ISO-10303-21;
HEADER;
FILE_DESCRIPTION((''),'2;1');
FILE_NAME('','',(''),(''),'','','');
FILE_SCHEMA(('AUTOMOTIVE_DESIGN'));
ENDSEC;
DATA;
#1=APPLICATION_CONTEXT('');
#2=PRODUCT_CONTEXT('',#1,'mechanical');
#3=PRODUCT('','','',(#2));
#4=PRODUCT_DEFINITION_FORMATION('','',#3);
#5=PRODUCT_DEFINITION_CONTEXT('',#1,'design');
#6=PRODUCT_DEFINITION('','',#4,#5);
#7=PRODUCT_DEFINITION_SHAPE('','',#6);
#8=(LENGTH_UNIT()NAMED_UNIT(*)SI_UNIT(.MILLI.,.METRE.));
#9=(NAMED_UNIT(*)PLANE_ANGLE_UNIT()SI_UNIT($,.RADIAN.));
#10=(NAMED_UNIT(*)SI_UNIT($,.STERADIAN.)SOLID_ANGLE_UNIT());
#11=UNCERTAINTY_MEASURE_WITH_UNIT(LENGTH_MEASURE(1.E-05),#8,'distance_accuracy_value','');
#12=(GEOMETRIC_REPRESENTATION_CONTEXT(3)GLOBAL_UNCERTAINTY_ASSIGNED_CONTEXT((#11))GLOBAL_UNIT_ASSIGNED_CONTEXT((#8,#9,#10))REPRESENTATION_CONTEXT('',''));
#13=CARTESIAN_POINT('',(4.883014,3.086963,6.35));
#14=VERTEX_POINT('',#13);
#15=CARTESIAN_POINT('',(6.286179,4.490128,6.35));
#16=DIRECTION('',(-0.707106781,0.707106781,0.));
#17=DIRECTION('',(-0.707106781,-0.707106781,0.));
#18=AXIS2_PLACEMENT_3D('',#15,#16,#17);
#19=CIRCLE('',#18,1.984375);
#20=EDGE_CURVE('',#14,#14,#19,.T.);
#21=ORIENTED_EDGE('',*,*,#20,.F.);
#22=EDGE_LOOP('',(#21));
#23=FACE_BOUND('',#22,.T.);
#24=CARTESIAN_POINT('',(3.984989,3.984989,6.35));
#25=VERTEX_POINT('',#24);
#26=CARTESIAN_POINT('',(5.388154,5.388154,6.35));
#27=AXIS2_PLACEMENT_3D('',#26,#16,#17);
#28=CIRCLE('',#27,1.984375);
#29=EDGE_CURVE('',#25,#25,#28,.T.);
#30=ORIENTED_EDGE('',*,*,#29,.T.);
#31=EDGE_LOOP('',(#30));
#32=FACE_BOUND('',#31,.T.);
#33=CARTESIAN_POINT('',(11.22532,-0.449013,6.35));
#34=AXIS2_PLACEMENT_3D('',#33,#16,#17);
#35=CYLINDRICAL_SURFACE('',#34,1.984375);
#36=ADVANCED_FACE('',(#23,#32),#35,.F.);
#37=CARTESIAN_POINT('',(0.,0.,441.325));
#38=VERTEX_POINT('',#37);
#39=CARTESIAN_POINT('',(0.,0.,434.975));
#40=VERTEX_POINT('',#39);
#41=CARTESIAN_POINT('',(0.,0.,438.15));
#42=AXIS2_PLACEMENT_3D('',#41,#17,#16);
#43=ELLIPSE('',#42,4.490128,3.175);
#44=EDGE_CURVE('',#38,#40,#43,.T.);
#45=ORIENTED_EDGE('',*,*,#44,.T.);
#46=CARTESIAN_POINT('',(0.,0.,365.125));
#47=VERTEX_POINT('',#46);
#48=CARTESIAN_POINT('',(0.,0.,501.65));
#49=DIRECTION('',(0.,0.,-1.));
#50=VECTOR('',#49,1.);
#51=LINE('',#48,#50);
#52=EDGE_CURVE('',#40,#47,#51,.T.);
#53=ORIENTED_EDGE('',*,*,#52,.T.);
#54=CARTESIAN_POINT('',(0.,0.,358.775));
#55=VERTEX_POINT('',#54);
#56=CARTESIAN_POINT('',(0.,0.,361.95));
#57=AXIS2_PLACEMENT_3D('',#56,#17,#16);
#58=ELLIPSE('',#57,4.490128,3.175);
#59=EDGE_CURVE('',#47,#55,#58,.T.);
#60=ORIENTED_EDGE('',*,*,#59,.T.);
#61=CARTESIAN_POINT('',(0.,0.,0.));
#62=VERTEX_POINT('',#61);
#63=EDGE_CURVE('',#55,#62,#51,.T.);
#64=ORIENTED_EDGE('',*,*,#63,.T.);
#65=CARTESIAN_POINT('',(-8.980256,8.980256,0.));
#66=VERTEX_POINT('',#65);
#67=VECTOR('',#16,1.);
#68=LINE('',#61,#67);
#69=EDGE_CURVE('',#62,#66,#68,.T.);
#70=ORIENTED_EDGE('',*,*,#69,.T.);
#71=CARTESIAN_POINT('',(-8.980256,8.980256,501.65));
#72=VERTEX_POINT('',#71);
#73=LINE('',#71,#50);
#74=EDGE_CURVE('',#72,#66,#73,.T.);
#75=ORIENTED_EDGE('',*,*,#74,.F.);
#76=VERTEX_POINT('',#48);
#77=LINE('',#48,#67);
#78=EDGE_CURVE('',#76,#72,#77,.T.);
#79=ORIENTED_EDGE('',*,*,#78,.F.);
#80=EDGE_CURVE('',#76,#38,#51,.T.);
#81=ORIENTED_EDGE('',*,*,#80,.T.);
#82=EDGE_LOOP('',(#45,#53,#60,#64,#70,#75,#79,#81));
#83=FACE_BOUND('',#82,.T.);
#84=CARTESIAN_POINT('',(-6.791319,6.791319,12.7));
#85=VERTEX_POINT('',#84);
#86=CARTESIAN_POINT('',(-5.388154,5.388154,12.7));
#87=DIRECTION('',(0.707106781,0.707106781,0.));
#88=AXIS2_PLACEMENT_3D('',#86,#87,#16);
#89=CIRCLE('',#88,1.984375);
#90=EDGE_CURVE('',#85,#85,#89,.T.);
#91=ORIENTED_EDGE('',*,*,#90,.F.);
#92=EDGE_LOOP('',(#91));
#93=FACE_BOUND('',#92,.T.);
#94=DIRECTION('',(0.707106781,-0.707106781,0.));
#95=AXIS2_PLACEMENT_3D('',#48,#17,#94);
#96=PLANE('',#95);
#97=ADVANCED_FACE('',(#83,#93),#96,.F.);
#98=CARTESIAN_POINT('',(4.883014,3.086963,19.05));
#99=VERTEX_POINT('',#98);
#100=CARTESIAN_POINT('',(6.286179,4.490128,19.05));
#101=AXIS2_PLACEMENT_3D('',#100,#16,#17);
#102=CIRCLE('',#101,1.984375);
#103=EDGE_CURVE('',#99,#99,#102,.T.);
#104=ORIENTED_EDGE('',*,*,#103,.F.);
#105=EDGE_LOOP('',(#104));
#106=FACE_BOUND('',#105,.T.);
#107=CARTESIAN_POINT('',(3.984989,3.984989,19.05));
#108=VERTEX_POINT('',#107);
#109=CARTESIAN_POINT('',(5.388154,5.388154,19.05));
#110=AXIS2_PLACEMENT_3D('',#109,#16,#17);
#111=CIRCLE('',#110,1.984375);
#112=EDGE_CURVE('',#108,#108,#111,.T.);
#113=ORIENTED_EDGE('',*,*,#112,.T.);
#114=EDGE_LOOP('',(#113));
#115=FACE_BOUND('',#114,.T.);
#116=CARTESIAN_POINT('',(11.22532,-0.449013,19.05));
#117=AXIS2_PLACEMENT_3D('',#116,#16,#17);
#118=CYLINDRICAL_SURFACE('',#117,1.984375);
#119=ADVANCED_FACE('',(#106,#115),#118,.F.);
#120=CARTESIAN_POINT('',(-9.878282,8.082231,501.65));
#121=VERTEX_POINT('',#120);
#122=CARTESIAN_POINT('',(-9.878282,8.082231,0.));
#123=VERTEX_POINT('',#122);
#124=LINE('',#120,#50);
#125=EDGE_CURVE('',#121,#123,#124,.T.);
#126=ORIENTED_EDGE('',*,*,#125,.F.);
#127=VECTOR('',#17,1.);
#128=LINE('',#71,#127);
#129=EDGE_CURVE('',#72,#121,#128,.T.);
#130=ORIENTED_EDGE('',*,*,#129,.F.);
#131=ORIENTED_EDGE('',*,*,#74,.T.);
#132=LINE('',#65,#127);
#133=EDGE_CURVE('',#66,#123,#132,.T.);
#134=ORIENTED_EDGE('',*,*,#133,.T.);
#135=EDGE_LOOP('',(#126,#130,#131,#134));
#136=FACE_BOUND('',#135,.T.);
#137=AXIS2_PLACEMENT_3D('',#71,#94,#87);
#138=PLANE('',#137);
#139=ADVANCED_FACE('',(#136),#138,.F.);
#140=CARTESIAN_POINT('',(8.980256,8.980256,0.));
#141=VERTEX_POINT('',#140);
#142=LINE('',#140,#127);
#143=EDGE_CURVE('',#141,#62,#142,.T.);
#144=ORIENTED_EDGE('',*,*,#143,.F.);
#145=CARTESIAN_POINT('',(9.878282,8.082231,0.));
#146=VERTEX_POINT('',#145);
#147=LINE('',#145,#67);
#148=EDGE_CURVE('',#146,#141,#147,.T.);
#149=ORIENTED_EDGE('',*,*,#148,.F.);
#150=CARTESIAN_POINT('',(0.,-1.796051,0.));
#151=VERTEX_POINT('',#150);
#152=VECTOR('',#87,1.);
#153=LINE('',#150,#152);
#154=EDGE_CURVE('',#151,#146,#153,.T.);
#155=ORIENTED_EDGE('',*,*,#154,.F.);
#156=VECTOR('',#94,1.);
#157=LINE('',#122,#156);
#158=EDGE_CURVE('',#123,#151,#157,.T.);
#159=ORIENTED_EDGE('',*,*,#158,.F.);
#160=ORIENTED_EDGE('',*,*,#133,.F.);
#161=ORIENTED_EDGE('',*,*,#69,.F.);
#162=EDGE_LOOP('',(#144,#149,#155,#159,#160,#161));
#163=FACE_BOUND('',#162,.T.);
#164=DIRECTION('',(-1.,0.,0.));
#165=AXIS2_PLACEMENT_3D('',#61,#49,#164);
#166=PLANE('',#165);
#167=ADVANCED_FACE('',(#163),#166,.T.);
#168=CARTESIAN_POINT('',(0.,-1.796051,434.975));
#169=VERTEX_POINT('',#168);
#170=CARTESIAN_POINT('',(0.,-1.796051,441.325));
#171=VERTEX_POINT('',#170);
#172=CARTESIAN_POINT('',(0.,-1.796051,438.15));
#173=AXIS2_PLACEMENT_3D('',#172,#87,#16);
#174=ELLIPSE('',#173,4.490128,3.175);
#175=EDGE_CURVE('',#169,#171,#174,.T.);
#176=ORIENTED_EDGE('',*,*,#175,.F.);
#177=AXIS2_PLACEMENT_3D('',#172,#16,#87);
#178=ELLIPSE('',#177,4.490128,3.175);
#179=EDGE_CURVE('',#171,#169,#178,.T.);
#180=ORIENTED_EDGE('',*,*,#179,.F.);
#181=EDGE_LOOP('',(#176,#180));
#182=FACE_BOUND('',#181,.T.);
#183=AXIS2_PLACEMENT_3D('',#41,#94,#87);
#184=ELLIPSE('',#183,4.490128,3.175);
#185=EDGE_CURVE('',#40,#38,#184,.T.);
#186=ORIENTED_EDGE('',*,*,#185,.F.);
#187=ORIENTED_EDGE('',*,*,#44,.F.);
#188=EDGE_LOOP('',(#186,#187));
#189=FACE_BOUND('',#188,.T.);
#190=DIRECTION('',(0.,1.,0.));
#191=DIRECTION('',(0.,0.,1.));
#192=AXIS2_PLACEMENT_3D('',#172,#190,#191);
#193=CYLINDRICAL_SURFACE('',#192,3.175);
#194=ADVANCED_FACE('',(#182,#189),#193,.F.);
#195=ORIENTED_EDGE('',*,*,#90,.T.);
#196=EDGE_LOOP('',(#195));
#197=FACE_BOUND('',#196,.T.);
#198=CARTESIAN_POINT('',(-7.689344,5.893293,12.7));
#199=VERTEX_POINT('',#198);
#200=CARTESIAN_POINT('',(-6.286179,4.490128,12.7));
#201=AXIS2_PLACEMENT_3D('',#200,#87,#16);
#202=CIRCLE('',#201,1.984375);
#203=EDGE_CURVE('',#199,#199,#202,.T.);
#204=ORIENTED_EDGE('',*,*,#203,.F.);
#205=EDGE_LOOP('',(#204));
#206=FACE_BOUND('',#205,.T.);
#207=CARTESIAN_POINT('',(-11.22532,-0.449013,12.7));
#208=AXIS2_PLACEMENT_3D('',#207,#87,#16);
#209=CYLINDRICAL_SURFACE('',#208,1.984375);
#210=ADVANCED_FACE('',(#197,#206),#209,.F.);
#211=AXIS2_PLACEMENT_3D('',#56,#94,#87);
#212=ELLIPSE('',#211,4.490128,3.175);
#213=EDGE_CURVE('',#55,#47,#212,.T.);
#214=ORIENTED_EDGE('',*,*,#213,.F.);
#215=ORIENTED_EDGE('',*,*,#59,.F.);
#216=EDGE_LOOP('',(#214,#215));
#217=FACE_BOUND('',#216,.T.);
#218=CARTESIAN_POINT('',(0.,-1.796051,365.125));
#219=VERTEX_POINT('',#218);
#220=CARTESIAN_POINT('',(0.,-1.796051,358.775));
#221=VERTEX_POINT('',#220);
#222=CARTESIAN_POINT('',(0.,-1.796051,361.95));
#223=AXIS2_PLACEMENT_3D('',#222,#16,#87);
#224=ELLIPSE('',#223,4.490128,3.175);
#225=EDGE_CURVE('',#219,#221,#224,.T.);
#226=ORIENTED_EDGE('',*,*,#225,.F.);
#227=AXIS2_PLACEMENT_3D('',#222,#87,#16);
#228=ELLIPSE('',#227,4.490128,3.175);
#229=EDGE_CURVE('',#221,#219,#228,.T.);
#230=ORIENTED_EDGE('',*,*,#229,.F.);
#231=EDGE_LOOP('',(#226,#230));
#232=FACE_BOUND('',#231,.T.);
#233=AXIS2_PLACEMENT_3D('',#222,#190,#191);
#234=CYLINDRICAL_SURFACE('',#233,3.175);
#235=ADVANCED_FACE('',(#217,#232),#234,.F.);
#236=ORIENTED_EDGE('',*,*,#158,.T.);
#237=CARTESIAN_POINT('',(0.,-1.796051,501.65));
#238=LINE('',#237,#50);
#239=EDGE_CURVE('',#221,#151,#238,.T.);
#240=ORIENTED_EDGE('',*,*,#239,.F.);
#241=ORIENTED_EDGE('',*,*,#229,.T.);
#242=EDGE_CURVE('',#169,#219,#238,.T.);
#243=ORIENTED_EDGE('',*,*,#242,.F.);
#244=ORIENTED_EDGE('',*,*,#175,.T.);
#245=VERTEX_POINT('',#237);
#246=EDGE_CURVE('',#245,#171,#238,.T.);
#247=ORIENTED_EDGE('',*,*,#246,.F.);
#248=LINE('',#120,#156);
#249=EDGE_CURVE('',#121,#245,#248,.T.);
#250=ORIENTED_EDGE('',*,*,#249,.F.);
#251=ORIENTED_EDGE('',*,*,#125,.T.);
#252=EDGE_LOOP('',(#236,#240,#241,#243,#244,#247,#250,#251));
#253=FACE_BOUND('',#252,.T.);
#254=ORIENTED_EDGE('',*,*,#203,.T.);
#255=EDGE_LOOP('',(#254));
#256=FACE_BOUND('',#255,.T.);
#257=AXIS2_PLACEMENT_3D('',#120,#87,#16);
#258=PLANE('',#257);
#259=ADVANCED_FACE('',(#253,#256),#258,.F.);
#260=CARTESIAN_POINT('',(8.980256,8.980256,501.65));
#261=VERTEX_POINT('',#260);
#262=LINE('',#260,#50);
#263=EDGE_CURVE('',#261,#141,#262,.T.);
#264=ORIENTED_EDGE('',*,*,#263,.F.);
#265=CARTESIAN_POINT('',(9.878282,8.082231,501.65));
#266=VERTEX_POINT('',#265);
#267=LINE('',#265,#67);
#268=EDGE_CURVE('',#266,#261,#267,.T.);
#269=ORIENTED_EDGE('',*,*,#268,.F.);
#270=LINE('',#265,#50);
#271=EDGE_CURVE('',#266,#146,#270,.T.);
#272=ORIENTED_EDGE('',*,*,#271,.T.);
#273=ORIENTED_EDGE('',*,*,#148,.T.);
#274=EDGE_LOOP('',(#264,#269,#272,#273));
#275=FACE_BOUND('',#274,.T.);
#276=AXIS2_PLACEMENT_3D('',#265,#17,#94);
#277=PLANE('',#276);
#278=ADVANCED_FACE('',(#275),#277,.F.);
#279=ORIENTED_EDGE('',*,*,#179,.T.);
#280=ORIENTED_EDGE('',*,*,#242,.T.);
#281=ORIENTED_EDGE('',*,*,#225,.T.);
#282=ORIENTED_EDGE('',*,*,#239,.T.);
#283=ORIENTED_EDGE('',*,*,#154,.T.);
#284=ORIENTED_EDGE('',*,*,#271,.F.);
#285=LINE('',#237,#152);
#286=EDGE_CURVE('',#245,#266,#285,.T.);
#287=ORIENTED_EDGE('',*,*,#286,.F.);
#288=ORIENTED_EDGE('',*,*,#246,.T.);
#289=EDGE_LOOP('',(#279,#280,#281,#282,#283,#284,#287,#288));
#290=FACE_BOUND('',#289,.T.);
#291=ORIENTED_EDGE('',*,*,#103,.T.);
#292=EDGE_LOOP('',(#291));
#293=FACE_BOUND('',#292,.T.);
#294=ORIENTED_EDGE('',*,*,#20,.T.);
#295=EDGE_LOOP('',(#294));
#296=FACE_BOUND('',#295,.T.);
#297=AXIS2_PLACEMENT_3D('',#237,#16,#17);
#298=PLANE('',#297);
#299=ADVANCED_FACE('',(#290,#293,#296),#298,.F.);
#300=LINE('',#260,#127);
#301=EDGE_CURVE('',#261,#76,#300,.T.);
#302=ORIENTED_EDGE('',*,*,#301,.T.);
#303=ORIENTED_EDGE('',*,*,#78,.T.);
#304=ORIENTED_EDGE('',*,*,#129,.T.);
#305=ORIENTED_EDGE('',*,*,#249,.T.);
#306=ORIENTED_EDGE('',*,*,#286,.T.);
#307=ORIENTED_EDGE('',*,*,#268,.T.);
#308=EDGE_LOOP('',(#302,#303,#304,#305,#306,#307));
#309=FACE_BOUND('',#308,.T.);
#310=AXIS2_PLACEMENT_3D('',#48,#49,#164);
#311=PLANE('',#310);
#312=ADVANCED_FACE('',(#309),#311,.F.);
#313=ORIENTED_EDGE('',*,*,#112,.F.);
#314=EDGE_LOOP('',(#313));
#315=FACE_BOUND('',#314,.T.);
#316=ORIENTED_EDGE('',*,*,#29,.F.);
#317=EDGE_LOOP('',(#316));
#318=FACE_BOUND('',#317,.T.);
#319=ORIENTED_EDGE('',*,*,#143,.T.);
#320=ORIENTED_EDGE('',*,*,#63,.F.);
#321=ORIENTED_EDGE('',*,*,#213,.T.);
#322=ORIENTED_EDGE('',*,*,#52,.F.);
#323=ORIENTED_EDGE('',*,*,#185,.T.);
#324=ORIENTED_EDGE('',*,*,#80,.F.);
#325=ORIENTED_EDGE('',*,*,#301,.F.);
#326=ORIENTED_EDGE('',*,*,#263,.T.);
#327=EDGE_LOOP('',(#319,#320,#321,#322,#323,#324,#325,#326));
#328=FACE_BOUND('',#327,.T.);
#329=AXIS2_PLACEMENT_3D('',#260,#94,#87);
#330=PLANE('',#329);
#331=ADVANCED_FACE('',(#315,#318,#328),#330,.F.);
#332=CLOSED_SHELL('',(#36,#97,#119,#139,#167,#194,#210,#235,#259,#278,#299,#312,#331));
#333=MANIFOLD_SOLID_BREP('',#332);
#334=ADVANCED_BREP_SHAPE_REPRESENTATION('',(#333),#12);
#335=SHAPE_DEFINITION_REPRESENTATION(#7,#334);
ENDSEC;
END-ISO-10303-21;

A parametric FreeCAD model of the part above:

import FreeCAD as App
import Part
import Sketcher

V = App.Vector
Q = App.Units.Quantity


def add_polygon(sketch, points):
    """Adds a closed chain of lines whose ends are joined by coincident constraints."""
    first, n = sketch.GeometryCount, len(points)
    for a, b in zip(points, points[1:] + points[:1]):
        sketch.addGeometry(Part.LineSegment(App.Vector(*a, 0), App.Vector(*b, 0)), False)
    for i in range(n):
        sketch.addConstraint(Sketcher.Constraint("Coincident", first + i, 2, first + (i + 1) % n, 1))

doc = App.newDocument("Part")
params = doc.addObject("Spreadsheet::Sheet", "Params")
for row, (alias, value) in enumerate([
    ("sketch1_length", "0.5 in"),
    ("sketch1_length2", "0.05 in"),
    ("pad1_length", "19.75 in"),
    ("sketch2_diameter", "0.15625 in"),
    ("sketch3_diameter", "0.15625 in"),
    ("sketch4_diameter", "0.25 in"),
], start=1):
    params.set(f"A{row}", alias)
    params.set(f"B{row}", "=" + value)
    params.setAlias(f"B{row}", alias)

body = doc.addObject("PartDesign::Body", "Body")

# Sketch on XY plane
sketch1 = body.newObject("Sketcher::SketchObject", "Sketch")
sketch1.AttachmentSupport = (doc.getObject("XY_Plane"), [""])
sketch1.MapMode = "FlatFace"
add_polygon(sketch1, [(0, 0), (-9, 9), (-9.9, 8.1), (0, -1.8), (9.9, 8.1), (9, 9)])  # lines 0-5
sketch1.addConstraint([
    Sketcher.Constraint("Coincident", 5, 2, -1, 1),
    Sketcher.Constraint("Symmetric", 1, 2, 3, 2, -2),
    Sketcher.Constraint("Symmetric", 0, 2, 4, 2, -2),
    Sketcher.Constraint("PointOnObject", 2, 2, -2),
    Sketcher.Constraint("Perpendicular", 0, 1),
    Sketcher.Constraint("Perpendicular", 1, 2),
    Sketcher.Constraint("Perpendicular", 2, 3),
    Sketcher.Constraint("Distance", 0, Q("0.5 in")),
    Sketcher.Constraint("Distance", 1, Q("0.05 in")),
])
sketch1.setExpression("Constraints[13]", "Params.sketch1_length")
sketch1.setExpression("Constraints[14]", "Params.sketch1_length2")
pad1 = body.newObject("PartDesign::Pad", "Pad")
pad1.Profile = sketch1
pad1.setExpression("Length", "Params.pad1_length")

# Sketch on an angled plane
sketch2 = body.newObject("Sketcher::SketchObject", "Sketch001")
sketch2.Placement = App.Placement(V(0, 0, 0), App.Rotation(V(0, 0, 1), V(0.707106781, 0.707106781, 0), V(-0.707106781, 0.707106781, 0), "ZXY"))
sketch2.addGeometry([
    Part.Circle(V(6.3, 7.6, 0), V(0, 0, 1), 2),
    Part.Circle(V(19.1, 7.6, 0), V(0, 0, 1), 2),
], False)
sketch2.addConstraint([
    Sketcher.Constraint("Equal", 0, 1),
    Sketcher.Constraint("Horizontal", 0, 3, 1, 3),
    Sketcher.Constraint("Diameter", 0, Q("0.15625 in")),
    Sketcher.Constraint("DistanceY", -1, 1, 0, 3, Q("0.3 in")),
    Sketcher.Constraint("DistanceX", 0, 3, 1, 3, Q("0.5 in")),
    Sketcher.Constraint("DistanceX", -1, 1, 0, 3, Q("0.25 in")),
])
sketch2.setExpression("Constraints[2]", "Params.sketch2_diameter")
pocket1 = body.newObject("PartDesign::Pocket", "Pocket")
pocket1.Profile = sketch2
pocket1.Type = "ThroughAll"

# Sketch on an angled plane
sketch3 = body.newObject("Sketcher::SketchObject", "Sketch002")
sketch3.Placement = App.Placement(V(0, 0, 0), App.Rotation(V(0, 0, -1), V(-0.707106781, 0.707106781, 0), V(0.707106781, 0.707106781, 0), "ZXY"))
sketch3.addGeometry(Part.Circle(V(-12.7, 7.6, 0), V(0, 0, 1), 2), False)
sketch3.addConstraint([
    Sketcher.Constraint("Diameter", 0, Q("0.15625 in")),
    Sketcher.Constraint("DistanceX", 0, 3, -1, 1, Q("0.5 in")),
    Sketcher.Constraint("DistanceY", -1, 1, 0, 3, Q("0.3 in")),
])
sketch3.setExpression("Constraints[0]", "Params.sketch3_diameter")
pocket2 = body.newObject("PartDesign::Pocket", "Pocket001")
pocket2.Profile = sketch3
pocket2.Type = "ThroughAll"

# Sketch on XZ plane
sketch4 = body.newObject("Sketcher::SketchObject", "Sketch003")
sketch4.AttachmentSupport = (doc.getObject("XZ_Plane"), [""])
sketch4.MapMode = "FlatFace"
sketch4.addGeometry([
    Part.Circle(V(0, 438.1, 0), V(0, 0, 1), 3.2),
    Part.Circle(V(0, 361.9, 0), V(0, 0, 1), 3.2),
], False)
sketch4.addConstraint([
    Sketcher.Constraint("Equal", 0, 1),
    Sketcher.Constraint("PointOnObject", 0, 3, -2),
    Sketcher.Constraint("PointOnObject", 1, 3, -2),
    Sketcher.Constraint("Diameter", 0, Q("0.25 in")),
    Sketcher.Constraint("DistanceY", 1, 3, 0, 3, Q("3 in")),
    Sketcher.Constraint("DistanceY", -1, 1, 0, 3, Q("17.25 in")),
])
sketch4.setExpression("Constraints[3]", "Params.sketch4_diameter")
pocket3 = body.newObject("PartDesign::Pocket", "Pocket002")
pocket3.Profile = sketch4
pocket3.Type = "ThroughAll"
pocket3.Midplane = True

doc.recompute()
